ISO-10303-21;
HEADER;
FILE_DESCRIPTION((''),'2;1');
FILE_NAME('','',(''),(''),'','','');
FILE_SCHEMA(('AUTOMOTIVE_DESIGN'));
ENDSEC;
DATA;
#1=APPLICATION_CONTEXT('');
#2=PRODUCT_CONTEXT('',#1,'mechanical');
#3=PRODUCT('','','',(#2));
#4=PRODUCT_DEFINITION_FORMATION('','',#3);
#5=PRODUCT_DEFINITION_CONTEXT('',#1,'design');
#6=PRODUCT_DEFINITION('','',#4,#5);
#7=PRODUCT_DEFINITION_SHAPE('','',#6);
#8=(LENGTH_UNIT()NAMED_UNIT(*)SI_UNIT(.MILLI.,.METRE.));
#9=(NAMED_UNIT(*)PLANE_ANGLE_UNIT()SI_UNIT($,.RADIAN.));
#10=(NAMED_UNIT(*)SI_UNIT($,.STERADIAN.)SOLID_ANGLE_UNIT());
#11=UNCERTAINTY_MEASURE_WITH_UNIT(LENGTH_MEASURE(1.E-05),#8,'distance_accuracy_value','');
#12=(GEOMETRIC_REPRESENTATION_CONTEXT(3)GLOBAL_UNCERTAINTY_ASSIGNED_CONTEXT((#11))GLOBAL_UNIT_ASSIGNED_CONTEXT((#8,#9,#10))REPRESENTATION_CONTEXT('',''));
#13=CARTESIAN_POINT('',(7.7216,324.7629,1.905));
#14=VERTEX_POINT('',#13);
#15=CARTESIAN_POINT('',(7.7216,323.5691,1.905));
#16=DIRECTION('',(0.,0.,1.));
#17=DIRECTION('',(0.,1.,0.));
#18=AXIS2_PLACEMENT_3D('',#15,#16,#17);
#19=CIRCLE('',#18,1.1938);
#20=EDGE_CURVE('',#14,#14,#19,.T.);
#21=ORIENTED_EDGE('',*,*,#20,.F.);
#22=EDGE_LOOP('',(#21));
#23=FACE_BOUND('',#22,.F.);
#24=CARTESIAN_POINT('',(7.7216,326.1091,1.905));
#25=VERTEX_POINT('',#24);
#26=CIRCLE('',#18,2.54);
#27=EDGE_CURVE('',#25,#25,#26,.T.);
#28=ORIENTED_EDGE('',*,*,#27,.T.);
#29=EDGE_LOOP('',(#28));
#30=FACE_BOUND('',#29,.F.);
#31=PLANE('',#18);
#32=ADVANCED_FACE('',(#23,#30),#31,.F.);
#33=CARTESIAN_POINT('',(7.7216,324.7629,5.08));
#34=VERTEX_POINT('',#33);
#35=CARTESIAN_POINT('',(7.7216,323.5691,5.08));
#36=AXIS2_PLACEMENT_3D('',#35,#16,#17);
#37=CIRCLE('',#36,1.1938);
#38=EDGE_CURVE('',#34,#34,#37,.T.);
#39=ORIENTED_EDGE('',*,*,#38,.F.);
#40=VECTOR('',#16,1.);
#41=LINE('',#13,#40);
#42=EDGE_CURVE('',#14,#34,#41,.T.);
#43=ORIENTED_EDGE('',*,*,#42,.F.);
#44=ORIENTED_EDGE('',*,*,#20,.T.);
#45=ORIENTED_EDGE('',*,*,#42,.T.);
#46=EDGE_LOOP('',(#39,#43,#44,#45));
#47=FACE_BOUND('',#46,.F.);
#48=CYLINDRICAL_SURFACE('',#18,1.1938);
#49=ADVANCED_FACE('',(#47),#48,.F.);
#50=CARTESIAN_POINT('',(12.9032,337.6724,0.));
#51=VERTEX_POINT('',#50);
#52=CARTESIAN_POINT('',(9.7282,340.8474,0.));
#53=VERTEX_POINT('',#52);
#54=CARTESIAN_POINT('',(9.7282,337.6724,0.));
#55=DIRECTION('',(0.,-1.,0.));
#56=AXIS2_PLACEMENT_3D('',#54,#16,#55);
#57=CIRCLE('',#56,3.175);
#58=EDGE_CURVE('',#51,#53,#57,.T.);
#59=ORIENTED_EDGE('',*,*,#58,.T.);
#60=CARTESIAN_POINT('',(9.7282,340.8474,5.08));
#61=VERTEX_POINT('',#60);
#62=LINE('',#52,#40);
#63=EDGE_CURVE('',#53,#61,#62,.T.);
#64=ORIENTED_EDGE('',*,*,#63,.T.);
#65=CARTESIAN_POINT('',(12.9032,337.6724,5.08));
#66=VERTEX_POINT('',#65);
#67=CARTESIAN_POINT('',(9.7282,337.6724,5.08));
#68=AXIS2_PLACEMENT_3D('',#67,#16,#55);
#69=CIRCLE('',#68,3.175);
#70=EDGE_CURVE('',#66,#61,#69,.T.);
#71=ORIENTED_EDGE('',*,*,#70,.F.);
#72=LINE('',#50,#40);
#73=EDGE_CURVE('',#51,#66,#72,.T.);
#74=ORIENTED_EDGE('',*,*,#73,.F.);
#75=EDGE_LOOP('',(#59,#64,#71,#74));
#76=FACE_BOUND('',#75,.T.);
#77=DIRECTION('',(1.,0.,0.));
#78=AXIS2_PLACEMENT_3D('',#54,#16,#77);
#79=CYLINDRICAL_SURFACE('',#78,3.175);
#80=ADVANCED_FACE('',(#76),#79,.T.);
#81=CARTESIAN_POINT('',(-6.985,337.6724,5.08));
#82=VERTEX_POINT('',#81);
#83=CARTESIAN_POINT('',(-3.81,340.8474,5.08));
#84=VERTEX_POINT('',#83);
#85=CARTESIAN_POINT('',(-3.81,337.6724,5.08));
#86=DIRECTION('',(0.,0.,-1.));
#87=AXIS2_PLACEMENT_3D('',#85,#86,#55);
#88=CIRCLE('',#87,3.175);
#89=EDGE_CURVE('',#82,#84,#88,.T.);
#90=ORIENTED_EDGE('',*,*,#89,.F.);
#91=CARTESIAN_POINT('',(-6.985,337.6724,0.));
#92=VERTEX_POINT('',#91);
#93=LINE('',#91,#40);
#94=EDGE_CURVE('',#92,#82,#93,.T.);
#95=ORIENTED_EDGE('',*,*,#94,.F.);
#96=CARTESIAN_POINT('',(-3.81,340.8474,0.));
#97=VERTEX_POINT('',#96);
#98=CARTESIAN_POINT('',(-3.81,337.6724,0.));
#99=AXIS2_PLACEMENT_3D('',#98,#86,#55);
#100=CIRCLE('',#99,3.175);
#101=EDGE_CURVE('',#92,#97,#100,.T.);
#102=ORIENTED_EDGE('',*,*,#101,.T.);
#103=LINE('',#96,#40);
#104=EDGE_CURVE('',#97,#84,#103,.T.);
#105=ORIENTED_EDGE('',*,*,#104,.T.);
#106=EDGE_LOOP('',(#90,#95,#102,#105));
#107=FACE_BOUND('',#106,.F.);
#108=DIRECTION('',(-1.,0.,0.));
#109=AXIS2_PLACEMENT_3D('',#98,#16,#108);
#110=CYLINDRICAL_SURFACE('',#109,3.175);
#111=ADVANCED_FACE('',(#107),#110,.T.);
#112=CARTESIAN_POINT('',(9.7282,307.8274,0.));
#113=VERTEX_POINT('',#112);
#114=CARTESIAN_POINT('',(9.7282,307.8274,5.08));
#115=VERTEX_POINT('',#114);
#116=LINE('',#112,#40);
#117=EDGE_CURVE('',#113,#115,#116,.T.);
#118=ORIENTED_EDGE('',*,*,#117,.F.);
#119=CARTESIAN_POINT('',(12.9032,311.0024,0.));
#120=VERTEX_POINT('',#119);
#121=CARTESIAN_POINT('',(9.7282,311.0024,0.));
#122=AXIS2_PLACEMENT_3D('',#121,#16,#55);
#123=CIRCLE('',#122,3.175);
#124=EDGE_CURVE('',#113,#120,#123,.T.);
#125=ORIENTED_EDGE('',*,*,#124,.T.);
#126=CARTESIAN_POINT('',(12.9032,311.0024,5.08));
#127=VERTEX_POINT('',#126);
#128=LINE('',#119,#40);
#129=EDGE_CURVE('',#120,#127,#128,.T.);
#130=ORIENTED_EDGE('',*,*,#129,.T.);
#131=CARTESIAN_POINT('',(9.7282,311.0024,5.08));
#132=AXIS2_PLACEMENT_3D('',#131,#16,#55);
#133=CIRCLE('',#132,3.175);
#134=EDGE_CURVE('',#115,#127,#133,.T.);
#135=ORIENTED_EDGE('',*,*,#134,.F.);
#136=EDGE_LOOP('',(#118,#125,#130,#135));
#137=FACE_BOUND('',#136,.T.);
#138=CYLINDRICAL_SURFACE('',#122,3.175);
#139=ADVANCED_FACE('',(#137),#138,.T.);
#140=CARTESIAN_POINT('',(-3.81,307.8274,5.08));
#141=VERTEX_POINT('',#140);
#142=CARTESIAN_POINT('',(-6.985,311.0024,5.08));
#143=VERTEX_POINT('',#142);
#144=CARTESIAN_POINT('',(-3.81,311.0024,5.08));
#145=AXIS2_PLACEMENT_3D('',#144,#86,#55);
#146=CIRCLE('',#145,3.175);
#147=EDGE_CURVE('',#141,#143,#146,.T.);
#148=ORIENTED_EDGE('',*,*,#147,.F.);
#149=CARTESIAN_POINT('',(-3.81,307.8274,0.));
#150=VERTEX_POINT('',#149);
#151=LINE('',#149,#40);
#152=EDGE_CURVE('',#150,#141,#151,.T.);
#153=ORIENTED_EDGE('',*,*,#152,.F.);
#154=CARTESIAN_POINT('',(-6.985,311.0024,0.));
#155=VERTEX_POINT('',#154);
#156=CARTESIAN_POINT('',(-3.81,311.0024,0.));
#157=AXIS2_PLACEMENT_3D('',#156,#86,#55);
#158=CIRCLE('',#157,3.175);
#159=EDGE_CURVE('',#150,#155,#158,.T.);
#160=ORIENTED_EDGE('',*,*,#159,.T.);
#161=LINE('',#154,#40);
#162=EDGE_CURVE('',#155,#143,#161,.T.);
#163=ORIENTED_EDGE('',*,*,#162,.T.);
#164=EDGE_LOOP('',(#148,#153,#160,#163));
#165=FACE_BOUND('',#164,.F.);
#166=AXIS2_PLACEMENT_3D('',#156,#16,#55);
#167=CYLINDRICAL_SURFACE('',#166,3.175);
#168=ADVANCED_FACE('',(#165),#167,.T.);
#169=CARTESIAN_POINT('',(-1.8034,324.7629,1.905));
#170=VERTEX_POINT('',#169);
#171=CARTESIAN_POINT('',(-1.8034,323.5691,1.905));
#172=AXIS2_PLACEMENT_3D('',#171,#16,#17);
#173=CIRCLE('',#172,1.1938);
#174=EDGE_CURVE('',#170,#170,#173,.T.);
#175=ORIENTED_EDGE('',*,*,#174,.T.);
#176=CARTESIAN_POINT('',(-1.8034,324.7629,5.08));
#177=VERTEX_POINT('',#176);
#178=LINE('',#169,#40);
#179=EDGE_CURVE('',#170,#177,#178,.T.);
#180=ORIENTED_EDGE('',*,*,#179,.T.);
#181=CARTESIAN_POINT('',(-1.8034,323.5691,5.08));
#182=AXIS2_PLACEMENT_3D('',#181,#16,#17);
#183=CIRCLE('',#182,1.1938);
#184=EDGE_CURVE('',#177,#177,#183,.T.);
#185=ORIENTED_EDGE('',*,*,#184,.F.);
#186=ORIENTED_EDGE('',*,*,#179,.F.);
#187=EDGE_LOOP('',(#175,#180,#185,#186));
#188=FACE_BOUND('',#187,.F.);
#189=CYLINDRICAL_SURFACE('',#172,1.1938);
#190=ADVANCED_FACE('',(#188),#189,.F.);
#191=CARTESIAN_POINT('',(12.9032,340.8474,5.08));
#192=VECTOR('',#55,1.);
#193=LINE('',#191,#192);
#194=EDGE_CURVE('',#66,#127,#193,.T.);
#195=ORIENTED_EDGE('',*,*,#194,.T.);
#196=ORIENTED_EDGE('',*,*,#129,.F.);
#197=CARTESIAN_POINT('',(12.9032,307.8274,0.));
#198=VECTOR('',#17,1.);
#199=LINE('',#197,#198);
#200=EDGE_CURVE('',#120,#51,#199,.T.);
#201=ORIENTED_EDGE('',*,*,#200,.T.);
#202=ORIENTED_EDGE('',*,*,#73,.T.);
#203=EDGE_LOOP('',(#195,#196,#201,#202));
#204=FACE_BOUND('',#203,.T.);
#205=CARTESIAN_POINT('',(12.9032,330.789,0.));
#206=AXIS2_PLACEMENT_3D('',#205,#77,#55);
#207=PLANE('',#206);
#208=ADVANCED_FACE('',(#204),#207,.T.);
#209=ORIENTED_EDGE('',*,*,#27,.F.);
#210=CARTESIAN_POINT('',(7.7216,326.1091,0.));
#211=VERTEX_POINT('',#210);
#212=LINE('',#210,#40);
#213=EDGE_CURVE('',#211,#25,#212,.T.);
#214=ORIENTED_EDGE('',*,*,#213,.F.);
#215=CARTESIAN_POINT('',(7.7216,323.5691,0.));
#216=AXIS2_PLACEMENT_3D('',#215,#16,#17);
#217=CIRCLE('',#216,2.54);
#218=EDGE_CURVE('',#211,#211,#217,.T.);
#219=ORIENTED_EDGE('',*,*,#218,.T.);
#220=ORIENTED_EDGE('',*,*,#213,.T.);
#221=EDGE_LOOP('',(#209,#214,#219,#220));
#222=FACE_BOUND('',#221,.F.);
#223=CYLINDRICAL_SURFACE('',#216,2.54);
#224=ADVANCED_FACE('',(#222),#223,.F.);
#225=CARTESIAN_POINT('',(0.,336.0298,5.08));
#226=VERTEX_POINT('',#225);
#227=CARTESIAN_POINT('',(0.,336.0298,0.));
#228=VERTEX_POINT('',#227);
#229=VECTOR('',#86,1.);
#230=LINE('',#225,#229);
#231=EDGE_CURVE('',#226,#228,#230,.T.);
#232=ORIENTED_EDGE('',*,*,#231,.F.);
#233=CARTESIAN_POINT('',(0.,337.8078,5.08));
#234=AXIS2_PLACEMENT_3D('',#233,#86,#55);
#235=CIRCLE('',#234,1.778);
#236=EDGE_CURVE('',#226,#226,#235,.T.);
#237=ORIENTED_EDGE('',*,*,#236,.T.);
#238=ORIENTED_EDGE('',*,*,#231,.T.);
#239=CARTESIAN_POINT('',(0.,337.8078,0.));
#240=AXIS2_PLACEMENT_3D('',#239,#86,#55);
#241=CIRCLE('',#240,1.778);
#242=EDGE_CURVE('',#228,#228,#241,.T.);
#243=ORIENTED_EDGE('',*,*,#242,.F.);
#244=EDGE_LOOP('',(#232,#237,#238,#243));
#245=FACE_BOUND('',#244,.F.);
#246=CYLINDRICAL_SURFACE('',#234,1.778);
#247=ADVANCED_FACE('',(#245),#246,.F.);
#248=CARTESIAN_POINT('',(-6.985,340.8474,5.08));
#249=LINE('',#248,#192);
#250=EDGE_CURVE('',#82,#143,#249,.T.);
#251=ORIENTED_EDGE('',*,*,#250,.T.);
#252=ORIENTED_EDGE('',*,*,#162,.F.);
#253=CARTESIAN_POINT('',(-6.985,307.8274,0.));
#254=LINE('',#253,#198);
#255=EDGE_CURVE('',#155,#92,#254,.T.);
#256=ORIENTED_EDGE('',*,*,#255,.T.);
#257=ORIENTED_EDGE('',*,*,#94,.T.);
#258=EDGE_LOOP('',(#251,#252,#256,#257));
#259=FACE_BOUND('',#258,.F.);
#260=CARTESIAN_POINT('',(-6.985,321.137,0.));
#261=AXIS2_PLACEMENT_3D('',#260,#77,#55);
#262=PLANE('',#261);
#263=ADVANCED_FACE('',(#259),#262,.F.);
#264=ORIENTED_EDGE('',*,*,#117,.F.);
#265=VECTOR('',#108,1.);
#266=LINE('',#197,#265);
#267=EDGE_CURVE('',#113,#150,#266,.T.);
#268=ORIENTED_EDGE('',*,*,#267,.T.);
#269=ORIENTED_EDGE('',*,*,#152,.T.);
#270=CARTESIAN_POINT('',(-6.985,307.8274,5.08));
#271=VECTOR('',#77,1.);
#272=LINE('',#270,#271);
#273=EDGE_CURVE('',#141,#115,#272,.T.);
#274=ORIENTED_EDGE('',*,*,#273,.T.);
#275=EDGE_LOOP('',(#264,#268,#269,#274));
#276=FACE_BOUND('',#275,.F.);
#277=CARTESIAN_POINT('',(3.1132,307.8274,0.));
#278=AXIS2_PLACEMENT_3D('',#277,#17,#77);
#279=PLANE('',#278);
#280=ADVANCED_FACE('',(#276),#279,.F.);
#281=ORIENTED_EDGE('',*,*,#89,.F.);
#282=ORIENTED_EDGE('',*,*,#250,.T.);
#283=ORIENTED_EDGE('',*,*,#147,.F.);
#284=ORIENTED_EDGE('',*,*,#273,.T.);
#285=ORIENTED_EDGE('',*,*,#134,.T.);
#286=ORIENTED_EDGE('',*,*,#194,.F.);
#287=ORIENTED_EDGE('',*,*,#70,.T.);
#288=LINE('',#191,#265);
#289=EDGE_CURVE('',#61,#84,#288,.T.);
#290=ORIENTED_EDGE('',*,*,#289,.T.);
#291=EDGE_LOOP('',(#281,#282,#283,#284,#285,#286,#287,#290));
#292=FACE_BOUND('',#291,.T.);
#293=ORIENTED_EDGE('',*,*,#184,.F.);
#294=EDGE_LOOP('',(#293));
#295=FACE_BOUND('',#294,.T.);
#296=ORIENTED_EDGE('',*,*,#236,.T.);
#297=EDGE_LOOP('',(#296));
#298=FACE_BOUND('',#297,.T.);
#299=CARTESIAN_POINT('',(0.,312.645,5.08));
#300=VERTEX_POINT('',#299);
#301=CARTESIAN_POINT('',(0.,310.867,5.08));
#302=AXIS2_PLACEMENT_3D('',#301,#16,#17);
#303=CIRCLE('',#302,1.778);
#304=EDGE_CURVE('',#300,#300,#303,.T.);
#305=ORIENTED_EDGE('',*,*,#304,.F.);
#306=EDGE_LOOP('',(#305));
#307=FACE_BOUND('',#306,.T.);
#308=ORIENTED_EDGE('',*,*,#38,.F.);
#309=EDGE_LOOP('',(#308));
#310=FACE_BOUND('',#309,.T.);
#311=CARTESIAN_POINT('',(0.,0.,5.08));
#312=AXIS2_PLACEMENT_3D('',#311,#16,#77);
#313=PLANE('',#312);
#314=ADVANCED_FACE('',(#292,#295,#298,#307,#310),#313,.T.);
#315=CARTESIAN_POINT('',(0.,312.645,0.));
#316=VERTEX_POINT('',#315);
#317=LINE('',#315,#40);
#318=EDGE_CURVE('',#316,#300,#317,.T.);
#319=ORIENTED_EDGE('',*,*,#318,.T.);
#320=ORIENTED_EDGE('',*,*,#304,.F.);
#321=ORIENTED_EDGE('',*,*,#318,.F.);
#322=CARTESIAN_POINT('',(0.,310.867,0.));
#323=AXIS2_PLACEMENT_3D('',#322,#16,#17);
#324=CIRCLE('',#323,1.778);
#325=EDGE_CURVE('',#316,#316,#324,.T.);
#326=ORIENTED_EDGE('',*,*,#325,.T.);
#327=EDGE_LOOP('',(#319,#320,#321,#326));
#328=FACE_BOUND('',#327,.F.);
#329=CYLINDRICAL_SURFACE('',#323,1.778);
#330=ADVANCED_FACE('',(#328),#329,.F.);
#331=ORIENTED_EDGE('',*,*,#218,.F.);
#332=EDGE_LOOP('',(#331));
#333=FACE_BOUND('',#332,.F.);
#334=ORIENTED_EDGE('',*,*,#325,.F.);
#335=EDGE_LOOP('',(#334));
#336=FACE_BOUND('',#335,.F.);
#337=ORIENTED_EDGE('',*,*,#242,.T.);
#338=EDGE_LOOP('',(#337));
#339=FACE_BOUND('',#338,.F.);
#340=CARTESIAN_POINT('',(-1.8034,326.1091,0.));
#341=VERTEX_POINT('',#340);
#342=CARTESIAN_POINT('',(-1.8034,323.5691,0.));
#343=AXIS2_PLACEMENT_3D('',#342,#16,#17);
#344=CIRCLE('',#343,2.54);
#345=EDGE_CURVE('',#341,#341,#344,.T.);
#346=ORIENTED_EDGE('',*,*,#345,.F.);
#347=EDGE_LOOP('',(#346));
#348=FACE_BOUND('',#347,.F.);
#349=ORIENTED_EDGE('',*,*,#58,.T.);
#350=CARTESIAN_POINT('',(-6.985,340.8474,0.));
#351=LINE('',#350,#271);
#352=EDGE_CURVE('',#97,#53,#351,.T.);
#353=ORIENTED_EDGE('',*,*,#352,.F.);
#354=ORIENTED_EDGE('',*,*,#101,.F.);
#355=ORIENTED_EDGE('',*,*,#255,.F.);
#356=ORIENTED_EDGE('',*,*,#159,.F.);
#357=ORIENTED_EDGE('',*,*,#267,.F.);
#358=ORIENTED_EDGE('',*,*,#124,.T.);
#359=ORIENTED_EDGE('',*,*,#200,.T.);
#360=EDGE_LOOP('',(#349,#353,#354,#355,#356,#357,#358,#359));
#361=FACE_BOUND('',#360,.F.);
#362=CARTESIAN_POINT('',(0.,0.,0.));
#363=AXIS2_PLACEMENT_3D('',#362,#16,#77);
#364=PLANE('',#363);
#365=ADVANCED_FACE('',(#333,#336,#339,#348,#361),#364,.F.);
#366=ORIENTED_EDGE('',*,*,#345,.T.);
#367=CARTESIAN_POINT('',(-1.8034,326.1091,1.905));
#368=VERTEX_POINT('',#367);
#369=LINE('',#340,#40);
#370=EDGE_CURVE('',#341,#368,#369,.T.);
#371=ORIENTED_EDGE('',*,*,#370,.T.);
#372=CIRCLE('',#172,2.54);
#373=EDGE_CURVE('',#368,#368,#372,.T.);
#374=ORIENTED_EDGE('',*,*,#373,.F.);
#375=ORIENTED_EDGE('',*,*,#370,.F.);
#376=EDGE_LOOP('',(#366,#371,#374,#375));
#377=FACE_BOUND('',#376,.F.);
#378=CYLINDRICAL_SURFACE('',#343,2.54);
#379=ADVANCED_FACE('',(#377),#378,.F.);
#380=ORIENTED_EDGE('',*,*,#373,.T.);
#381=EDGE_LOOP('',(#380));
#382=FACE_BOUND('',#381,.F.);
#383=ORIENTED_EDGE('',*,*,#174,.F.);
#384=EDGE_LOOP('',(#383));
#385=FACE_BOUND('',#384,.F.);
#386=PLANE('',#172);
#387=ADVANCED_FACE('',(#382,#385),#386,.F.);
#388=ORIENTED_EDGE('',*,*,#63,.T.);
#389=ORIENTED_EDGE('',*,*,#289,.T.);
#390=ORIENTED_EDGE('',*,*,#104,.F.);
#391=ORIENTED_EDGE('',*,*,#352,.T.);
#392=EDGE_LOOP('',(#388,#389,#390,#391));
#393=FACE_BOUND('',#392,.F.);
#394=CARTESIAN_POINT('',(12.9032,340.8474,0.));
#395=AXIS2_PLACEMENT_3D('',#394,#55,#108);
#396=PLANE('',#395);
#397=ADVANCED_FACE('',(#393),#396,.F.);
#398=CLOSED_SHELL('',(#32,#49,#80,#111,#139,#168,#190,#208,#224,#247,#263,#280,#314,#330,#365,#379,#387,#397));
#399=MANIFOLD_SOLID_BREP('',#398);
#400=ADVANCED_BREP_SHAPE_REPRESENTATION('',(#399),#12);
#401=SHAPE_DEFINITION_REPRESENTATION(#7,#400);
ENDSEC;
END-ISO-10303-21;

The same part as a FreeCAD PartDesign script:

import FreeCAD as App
import Part
import Sketcher
from FreeCAD import Vector
Q = App.Units.Quantity


def edges_at(feature, points):
    """Names of the edges that pass closest to the given points."""
    edges = feature.Shape.Edges
    near = lambda p: min(range(len(edges)), key=lambda i: edges[i].distToShape(Part.Vertex(*p))[0])
    return sorted({f"Edge{near(p) + 1}" for p in points})


def add_polygon(sketch, points):
    """Adds a closed chain of lines whose ends are joined by coincident constraints."""
    first, n = sketch.GeometryCount, len(points)
    for a, b in zip(points, points[1:] + points[:1]):
        sketch.addGeometry(Part.LineSegment(App.Vector(*a, 0), App.Vector(*b, 0)), False)
    for i in range(n):
        sketch.addConstraint(Sketcher.Constraint("Coincident", first + i, 2, first + (i + 1) % n, 1))

doc = App.newDocument("Part")
body = doc.addObject("PartDesign::Body", "Body")

# Sketch on XY plane
sketch1 = body.newObject("Sketcher::SketchObject", "Sketch")
sketch1.AttachmentSupport = (doc.getObject("XY_Plane"), [""])
sketch1.MapMode = "FlatFace"
add_polygon(sketch1, [(13, 341), (-7, 341), (-7, 308), (13, 308)])  # lines 0-3
sketch1.addConstraint([
    Sketcher.Constraint("Horizontal", 0),
    Sketcher.Constraint("Vertical", 1),
    Sketcher.Constraint("Horizontal", 2),
    Sketcher.Constraint("Vertical", 3),
    Sketcher.Constraint("DistanceY", 1, 2, 1, 1, Q("1.3 in")),
    Sketcher.Constraint("DistanceX", 0, 2, 0, 1, Q("0.783 in")),
    Sketcher.Constraint("DistanceX", 0, 2, -1, 1, Q("0.275 in")),
    Sketcher.Constraint("DistanceY", -1, 1, 0, 2, Q("13.4192 in")),
])
pad1 = body.newObject("PartDesign::Pad", "Pad")
pad1.Profile = sketch1
pad1.Length = Q("0.2 in")

# Sketch on XY plane
sketch2 = body.newObject("Sketcher::SketchObject", "Sketch001")
sketch2.AttachmentSupport = (doc.getObject("XY_Plane"), [""])
sketch2.MapMode = "FlatFace"
sketch2.addGeometry(Part.Circle(Vector(-1.8, 323.6, 0), Vector(0, 0, 1), 1.2), False)
sketch2.addConstraint([
    Sketcher.Constraint("Diameter", 0, Q("0.094 in")),
    Sketcher.Constraint("DistanceX", 0, 3, -1, 1, Q("0.071 in")),
    Sketcher.Constraint("DistanceY", -1, 1, 0, 3, Q("323.569 mm")),
])
doc.recompute()
hole = body.newObject("PartDesign::Hole", "Hole")
hole.Profile = sketch2
hole.ThreadType = "None"
hole.Diameter = Q("0.094 in")
hole.DepthType = "ThroughAll"
hole.HoleCutType = "Counterbore"
hole.HoleCutDiameter = Q("0.2 in")
hole.HoleCutDepth = Q("0.075 in")
hole.Reversed = True

# Sketch on XY plane
sketch3 = body.newObject("Sketcher::SketchObject", "Sketch002")
sketch3.AttachmentSupport = (doc.getObject("XY_Plane"), [""])
sketch3.MapMode = "FlatFace"
sketch3.addGeometry(Part.Circle(Vector(7.7, 323.6, 0), Vector(0, 0, 1), 1.2), False)
sketch3.addConstraint([
    Sketcher.Constraint("Diameter", 0, Q("0.094 in")),
    Sketcher.Constraint("DistanceX", -1, 1, 0, 3, Q("0.304 in")),
    Sketcher.Constraint("DistanceY", -1, 1, 0, 3, Q("323.569 mm")),
])
doc.recompute()
hole2 = body.newObject("PartDesign::Hole", "Hole001")
hole2.Profile = sketch3
hole2.ThreadType = "None"
hole2.Diameter = Q("0.094 in")
hole2.DepthType = "ThroughAll"
hole2.HoleCutType = "Counterbore"
hole2.HoleCutDiameter = Q("0.2 in")
hole2.HoleCutDepth = Q("0.075 in")
hole2.Reversed = True

# Sketch on XY plane
sketch4 = body.newObject("Sketcher::SketchObject", "Sketch003")
sketch4.AttachmentSupport = (doc.getObject("XY_Plane"), [""])
sketch4.MapMode = "FlatFace"
sketch4.AttachmentOffset = App.Placement(Vector(0, 0, 0.2 * 25.4), App.Rotation())
sketch4.addGeometry(Part.Circle(Vector(0, 337.8, 0), Vector(0, 0, 1), 1.8), False)
sketch4.addConstraint([
    Sketcher.Constraint("PointOnObject", 0, 3, -2),
    Sketcher.Constraint("Diameter", 0, Q("0.14 in")),
    Sketcher.Constraint("DistanceY", -1, 1, 0, 3, Q("337.8078 mm")),
])
doc.recompute()
hole3 = body.newObject("PartDesign::Hole", "Hole002")
hole3.Profile = sketch4
hole3.ThreadType = "None"
hole3.Diameter = Q("0.14 in")
hole3.DepthType = "ThroughAll"

# Sketch on XY plane
sketch5 = body.newObject("Sketcher::SketchObject", "Sketch004")
sketch5.AttachmentSupport = (doc.getObject("XY_Plane"), [""])
sketch5.MapMode = "FlatFace"
sketch5.addGeometry(Part.Circle(Vector(0, 310.9, 0), Vector(0, 0, 1), 1.8), False)
sketch5.addConstraint([
    Sketcher.Constraint("PointOnObject", 0, 3, -2),
    Sketcher.Constraint("Diameter", 0, Q("0.14 in")),
    Sketcher.Constraint("DistanceY", -1, 1, 0, 3, Q("310.867 mm")),
])
doc.recompute()
hole4 = body.newObject("PartDesign::Hole", "Hole003")
hole4.Profile = sketch5
hole4.ThreadType = "None"
hole4.Diameter = Q("0.14 in")
hole4.DepthType = "ThroughAll"
hole4.Reversed = True
doc.recompute()

fillet = body.newObject("PartDesign::Fillet", "Fillet")
fillet.Base = (hole4, edges_at(hole4, [(-6.985, 307.827, 2.54)]))
fillet.Radius = Q("0.125 in")
doc.recompute()

fillet2 = body.newObject("PartDesign::Fillet", "Fillet001")
fillet2.Base = (fillet, edges_at(fillet, [(-6.985, 340.847, 2.54)]))
fillet2.Radius = Q("0.125 in")
doc.recompute()

fillet3 = body.newObject("PartDesign::Fillet", "Fillet002")
fillet3.Base = (fillet2, edges_at(fillet2, [(12.903, 307.827, 2.54)]))
fillet3.Radius = Q("0.125 in")
doc.recompute()

fillet4 = body.newObject("PartDesign::Fillet", "Fillet003")
fillet4.Base = (fillet3, edges_at(fillet3, [(12.903, 340.847, 2.54)]))
fillet4.Radius = Q("0.125 in")

doc.recompute()
